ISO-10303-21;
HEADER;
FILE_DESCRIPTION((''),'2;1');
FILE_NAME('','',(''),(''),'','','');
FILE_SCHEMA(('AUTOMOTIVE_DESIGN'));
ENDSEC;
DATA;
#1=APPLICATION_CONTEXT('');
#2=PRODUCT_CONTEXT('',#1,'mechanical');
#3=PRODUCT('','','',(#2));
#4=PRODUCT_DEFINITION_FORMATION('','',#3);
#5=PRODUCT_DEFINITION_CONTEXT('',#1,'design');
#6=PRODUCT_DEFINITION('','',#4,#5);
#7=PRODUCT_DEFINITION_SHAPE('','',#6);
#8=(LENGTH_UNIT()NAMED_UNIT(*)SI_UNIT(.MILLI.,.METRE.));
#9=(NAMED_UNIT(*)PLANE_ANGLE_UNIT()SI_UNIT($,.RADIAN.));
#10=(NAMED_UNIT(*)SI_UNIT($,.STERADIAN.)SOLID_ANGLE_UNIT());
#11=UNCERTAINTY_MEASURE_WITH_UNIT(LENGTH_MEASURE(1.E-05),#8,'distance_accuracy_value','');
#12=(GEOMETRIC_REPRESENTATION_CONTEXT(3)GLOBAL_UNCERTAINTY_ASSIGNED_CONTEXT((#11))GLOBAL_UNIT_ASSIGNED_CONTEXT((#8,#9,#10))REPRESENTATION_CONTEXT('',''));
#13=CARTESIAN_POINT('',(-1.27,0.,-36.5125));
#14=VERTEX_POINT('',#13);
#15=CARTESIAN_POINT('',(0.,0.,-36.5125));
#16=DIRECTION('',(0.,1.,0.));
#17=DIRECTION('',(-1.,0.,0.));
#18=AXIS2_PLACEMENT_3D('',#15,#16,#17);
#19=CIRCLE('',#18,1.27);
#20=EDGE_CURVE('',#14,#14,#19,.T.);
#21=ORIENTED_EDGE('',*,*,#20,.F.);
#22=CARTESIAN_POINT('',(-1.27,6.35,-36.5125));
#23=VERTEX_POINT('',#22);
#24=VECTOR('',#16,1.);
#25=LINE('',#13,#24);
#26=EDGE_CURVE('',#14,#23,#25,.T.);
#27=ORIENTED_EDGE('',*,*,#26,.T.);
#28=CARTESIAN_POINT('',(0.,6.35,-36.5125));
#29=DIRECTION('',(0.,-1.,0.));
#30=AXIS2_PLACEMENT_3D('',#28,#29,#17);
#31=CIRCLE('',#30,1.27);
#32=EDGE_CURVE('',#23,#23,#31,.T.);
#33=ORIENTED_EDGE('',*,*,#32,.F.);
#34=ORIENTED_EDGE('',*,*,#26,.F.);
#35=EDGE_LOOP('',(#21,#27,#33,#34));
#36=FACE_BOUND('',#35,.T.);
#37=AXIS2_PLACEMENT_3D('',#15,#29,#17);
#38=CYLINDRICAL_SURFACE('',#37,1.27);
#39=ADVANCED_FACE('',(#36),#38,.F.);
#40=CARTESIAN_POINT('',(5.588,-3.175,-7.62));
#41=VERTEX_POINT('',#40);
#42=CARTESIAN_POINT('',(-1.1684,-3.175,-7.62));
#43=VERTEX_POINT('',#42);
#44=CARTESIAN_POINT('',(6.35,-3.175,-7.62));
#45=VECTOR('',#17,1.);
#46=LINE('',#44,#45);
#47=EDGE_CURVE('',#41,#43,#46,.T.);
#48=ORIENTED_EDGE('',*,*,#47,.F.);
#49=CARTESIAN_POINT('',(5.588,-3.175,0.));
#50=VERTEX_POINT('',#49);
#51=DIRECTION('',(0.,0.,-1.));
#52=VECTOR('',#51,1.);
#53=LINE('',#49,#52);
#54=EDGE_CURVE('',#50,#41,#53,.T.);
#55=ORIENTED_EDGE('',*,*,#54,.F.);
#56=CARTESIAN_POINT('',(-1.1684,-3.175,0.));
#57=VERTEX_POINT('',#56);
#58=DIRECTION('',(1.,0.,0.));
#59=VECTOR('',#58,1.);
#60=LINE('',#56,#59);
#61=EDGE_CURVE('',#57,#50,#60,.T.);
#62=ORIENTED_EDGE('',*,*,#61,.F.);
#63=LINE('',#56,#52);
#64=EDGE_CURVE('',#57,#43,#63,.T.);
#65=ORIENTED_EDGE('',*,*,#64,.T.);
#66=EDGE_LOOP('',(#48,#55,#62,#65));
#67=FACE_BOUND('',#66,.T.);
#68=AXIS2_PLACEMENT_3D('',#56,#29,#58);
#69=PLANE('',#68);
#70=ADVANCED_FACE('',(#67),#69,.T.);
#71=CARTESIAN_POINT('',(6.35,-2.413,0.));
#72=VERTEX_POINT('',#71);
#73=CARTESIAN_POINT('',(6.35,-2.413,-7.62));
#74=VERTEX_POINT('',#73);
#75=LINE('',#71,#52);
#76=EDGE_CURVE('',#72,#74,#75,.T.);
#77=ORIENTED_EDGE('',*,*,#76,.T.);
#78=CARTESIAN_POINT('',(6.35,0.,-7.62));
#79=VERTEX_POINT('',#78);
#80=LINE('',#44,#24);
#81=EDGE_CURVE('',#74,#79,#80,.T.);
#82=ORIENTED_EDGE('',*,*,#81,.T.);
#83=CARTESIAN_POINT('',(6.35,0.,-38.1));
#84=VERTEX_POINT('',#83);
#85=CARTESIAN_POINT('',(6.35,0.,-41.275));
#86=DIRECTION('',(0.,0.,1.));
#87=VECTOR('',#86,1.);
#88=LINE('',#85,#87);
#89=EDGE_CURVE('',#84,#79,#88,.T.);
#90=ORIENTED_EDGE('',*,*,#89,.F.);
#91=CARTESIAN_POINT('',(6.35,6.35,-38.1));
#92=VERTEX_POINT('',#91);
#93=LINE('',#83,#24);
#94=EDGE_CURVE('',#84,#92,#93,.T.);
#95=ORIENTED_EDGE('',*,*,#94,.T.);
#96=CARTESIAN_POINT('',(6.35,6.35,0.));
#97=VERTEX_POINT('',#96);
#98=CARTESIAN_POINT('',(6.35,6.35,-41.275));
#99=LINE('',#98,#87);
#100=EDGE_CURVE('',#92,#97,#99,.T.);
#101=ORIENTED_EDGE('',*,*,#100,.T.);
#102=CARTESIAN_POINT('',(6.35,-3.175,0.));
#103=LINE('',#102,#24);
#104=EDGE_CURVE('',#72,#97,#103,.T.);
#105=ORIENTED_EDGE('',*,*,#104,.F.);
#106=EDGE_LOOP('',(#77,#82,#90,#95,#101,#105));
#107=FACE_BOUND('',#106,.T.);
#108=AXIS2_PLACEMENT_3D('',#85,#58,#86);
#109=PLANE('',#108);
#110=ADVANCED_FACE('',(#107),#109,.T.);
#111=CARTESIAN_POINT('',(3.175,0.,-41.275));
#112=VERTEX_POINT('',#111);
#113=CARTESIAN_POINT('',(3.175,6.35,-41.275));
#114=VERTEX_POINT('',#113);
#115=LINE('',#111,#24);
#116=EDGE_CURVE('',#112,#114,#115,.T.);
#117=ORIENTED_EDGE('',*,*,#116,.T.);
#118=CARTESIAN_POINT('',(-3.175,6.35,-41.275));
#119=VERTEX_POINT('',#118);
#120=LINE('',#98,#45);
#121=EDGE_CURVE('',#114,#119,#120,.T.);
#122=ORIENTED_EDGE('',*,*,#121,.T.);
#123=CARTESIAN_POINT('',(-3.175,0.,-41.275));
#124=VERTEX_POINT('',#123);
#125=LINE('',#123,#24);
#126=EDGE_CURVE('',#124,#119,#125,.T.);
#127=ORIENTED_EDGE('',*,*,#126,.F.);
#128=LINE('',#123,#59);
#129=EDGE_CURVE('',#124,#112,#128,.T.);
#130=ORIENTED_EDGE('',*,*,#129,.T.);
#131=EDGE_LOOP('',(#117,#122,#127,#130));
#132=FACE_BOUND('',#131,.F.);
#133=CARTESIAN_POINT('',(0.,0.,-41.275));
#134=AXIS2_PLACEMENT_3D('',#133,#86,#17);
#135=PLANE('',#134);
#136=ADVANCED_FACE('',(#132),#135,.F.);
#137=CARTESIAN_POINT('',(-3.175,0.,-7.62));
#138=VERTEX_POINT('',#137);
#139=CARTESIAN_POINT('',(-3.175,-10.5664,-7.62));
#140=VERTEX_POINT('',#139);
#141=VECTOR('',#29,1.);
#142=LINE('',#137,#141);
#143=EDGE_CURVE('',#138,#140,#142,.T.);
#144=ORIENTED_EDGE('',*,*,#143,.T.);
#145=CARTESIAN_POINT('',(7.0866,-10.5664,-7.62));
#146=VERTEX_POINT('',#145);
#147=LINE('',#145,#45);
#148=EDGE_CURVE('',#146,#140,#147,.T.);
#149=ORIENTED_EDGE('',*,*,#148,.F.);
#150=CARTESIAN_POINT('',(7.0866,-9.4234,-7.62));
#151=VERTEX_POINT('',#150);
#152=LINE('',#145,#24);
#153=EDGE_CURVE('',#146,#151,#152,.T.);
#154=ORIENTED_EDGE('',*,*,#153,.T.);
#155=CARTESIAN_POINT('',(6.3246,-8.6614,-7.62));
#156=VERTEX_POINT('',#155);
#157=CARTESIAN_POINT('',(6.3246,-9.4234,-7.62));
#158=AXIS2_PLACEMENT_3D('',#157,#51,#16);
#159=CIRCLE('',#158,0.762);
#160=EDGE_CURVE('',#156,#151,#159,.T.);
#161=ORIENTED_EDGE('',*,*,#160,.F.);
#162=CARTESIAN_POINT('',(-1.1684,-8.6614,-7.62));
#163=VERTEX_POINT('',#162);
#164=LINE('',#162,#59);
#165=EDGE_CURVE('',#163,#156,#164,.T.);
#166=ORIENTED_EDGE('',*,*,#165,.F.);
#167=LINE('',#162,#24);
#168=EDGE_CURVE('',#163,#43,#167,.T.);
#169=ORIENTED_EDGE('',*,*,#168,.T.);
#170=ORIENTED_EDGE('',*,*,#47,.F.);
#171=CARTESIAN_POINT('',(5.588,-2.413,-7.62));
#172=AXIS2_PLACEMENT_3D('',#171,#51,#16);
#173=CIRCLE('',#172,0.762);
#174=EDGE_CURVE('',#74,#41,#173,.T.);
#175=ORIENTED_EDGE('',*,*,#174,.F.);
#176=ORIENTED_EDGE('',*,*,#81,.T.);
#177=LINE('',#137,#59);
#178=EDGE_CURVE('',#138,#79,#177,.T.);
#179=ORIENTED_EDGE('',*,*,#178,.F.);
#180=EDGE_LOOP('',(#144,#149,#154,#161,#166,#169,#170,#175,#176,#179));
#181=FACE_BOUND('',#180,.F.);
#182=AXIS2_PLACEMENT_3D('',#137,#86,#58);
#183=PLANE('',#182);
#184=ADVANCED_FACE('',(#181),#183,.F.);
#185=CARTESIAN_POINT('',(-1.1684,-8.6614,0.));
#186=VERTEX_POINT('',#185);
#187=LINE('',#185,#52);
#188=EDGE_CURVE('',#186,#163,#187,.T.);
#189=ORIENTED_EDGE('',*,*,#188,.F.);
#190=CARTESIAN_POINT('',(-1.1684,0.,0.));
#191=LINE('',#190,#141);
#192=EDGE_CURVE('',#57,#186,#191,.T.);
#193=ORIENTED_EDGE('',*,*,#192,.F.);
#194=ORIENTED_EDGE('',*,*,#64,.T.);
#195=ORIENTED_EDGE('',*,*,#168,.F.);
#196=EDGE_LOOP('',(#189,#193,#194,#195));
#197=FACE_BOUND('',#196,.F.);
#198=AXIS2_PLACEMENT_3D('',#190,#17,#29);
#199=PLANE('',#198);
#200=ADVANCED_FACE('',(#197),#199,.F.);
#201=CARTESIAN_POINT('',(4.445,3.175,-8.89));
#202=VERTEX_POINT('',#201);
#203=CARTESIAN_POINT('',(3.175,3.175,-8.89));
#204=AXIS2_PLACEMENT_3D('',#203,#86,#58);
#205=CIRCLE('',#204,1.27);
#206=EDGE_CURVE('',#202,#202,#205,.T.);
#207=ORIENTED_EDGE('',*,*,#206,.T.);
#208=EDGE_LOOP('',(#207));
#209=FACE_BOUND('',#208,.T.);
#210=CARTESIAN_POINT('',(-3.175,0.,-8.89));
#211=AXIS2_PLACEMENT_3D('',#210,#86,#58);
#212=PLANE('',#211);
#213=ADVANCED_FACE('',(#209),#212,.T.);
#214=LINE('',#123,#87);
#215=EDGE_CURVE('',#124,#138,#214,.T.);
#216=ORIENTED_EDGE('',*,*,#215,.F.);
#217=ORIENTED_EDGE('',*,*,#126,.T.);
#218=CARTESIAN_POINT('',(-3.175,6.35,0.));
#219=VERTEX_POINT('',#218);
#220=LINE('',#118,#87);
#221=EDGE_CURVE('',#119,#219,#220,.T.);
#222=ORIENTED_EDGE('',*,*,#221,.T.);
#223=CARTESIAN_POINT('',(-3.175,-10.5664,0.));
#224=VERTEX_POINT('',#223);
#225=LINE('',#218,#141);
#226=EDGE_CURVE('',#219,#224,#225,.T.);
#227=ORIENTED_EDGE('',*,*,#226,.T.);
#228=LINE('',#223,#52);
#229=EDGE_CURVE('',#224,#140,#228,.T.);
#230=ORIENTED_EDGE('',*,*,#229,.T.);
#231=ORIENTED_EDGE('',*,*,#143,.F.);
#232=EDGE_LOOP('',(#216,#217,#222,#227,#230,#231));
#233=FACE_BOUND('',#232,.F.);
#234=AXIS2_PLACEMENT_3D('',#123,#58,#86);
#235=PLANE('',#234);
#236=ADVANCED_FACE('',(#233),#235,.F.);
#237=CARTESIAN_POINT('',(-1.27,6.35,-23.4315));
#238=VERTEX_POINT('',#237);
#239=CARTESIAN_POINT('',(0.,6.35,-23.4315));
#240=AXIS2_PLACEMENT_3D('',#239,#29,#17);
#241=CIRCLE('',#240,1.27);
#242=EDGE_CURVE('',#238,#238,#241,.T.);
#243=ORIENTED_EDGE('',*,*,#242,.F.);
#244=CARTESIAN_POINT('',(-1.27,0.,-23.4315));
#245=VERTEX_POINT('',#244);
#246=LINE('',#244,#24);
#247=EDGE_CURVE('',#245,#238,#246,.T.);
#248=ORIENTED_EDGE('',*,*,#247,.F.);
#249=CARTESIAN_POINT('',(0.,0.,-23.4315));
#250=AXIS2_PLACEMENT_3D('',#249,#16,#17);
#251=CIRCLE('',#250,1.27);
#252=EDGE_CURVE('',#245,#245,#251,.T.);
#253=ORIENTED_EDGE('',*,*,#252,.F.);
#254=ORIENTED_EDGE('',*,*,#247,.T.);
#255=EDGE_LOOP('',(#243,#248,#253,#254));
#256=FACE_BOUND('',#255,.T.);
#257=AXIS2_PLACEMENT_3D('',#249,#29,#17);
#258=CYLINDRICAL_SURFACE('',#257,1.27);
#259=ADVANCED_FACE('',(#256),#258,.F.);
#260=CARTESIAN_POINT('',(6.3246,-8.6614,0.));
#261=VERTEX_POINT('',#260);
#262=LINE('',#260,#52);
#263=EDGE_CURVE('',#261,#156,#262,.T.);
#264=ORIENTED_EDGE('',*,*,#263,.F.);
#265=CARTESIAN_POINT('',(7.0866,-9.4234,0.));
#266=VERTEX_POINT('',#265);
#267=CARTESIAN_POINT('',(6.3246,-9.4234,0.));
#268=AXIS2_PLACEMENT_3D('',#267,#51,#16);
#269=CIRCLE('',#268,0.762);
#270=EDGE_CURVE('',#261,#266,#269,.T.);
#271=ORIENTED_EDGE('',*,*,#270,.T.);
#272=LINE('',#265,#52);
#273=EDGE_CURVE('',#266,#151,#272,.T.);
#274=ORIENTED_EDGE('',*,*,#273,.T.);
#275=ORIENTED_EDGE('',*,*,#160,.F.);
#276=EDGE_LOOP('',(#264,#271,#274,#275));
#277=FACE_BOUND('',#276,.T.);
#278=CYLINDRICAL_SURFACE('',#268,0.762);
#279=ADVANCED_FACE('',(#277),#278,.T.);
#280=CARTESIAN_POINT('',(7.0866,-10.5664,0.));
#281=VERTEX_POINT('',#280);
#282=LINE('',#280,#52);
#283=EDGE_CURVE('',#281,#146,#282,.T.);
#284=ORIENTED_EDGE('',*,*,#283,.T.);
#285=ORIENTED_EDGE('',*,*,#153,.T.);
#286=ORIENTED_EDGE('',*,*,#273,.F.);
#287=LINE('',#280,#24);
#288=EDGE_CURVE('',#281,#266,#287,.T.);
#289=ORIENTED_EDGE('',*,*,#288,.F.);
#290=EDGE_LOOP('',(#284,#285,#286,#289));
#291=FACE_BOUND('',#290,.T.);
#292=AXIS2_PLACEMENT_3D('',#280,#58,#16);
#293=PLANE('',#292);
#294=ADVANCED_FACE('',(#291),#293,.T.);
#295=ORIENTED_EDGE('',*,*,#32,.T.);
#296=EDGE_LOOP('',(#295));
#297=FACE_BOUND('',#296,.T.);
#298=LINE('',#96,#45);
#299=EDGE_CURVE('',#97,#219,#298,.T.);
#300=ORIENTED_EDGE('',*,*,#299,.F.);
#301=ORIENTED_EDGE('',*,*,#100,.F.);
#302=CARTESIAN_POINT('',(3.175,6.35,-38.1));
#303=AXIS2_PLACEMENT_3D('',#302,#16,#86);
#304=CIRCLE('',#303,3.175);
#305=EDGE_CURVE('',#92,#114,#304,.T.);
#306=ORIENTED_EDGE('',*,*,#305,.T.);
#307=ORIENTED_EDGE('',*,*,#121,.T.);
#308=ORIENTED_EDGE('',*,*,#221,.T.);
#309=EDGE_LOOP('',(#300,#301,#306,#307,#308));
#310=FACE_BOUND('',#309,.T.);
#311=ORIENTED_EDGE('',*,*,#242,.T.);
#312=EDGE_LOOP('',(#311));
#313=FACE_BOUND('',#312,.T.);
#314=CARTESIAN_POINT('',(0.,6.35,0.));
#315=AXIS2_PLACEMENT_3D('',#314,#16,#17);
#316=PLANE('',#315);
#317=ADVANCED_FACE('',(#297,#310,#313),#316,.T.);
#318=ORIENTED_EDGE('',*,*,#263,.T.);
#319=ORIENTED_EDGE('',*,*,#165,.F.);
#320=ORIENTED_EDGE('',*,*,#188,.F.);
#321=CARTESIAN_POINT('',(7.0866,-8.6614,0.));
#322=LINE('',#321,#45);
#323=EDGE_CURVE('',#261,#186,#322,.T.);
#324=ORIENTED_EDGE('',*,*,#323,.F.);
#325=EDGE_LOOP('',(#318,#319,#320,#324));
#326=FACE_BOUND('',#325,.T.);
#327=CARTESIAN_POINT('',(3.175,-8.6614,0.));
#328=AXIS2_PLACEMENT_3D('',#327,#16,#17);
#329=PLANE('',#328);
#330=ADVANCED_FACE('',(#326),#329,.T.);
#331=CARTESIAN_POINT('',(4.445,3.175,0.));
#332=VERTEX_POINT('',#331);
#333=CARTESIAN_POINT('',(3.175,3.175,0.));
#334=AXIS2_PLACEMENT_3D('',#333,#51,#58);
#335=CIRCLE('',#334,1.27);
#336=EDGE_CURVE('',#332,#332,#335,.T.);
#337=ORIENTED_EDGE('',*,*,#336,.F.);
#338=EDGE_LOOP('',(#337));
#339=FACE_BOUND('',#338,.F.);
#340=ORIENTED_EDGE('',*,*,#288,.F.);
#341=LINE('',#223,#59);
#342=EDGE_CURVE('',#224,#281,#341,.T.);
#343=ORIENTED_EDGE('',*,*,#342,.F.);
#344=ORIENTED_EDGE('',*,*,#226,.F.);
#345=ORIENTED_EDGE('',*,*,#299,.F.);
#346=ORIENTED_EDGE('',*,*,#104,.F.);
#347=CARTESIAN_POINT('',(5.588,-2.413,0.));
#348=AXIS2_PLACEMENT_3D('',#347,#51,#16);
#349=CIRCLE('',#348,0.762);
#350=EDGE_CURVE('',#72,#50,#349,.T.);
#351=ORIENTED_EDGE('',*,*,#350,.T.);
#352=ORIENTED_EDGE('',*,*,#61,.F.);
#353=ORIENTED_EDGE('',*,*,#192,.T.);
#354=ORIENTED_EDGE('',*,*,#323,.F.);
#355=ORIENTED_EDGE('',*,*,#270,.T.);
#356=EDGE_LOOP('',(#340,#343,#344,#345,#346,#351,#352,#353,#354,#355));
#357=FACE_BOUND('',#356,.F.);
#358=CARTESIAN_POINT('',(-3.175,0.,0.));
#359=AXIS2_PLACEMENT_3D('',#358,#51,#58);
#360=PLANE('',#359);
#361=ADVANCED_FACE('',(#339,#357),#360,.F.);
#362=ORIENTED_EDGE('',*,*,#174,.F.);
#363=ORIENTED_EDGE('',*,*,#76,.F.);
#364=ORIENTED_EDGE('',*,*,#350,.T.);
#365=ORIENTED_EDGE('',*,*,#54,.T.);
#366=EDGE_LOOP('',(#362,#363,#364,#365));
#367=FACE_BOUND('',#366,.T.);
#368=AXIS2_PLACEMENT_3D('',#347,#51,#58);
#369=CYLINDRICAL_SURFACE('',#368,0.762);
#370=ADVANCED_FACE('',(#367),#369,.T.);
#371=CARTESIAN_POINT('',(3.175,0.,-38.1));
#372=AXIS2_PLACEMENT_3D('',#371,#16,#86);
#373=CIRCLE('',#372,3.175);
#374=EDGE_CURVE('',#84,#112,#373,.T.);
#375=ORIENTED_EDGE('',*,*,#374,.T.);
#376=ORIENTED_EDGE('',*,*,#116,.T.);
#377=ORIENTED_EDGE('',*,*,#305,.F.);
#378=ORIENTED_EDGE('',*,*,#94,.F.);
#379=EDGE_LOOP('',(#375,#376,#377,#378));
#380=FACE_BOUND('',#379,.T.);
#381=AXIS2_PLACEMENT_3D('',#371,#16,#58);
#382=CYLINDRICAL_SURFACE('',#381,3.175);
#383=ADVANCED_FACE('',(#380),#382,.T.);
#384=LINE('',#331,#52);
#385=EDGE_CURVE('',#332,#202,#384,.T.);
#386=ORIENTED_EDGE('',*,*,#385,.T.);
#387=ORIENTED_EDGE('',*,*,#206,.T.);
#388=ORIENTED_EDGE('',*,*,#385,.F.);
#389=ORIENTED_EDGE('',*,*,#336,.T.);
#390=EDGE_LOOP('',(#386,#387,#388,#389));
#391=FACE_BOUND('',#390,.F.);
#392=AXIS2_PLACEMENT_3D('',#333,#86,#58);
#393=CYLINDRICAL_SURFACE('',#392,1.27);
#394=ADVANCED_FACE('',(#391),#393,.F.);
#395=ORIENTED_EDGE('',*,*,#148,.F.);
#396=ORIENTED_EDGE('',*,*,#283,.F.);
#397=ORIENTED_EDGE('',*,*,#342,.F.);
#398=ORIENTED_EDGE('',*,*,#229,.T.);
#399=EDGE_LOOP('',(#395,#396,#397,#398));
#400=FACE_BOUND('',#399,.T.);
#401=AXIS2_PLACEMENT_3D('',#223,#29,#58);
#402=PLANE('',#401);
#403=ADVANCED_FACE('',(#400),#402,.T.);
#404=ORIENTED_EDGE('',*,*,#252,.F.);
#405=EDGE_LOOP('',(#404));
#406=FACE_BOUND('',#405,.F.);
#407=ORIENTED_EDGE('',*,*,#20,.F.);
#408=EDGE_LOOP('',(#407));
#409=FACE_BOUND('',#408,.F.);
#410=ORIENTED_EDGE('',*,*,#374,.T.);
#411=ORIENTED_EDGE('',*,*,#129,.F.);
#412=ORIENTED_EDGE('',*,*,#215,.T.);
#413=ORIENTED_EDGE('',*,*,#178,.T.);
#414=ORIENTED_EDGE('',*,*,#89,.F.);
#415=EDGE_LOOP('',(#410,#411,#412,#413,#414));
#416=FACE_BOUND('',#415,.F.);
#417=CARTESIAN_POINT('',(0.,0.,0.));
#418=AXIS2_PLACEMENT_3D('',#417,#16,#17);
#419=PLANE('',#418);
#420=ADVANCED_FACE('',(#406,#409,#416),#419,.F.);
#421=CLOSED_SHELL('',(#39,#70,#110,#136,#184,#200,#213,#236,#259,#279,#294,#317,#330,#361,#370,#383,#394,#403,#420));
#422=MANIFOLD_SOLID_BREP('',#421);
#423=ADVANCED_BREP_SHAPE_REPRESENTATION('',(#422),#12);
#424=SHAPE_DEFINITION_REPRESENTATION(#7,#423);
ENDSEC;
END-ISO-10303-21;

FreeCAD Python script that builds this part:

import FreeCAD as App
import Part
import Sketcher
Q = App.Units.Quantity


def edges_at(feature, points):
    """Names of the edges that pass closest to the given points."""
    edges = feature.Shape.Edges
    near = lambda p: min(range(len(edges)), key=lambda i: edges[i].distToShape(Part.Vertex(*p))[0])
    return sorted({f"Edge{near(p) + 1}" for p in points})


def add_polygon(sketch, points):
    """Adds a closed chain of lines whose ends are joined by coincident constraints."""
    first, n = sketch.GeometryCount, len(points)
    for a, b in zip(points, points[1:] + points[:1]):
        sketch.addGeometry(Part.LineSegment(App.Vector(*a, 0), App.Vector(*b, 0)), False)
    for i in range(n):
        sketch.addConstraint(Sketcher.Constraint("Coincident", first + i, 2, first + (i + 1) % n, 1))

doc = App.newDocument("Part")
params = doc.addObject("Spreadsheet::Sheet", "Params")
for row, (alias, value) in enumerate([
    ("sketch1_height", "1.625 in"),
    ("pad1_length", "0.25 in"),
    ("sketch2_diameter", "0.1 in"),
    ("pocket1_length", "0.25 in"),
    ("sketch3_diameter", "0.1 in"),
    ("pocket2_length", "0.35 in"),
    ("sketch4_width", "0.325 in"),
    ("sketch4_height", "0.075 in"),
    ("sketch4_width2", "0.079 in"),
    ("sketch4_height2", "0.416 in"),
    ("pad2_length", "0.3 in"),
    ("sketch5_height", "0.125 in"),
    ("sketch5_width", "0.296 in"),
    ("pad3_length", "0.3 in"),
    ("fillet_radius", "0.125 in"),
    ("fillet2_radius", "0.03 in"),
], start=1):
    params.set(f"A{row}", alias)
    params.set(f"B{row}", "=" + value)
    params.setAlias(f"B{row}", alias)

body = doc.addObject("PartDesign::Body", "Body")

# Sketch on XZ plane
sketch1 = body.newObject("Sketcher::SketchObject", "Sketch")
sketch1.AttachmentSupport = (doc.getObject("XZ_Plane"), [""])
sketch1.MapMode = "FlatFace"
add_polygon(sketch1, [(-3, 0), (6, 0), (6, -41), (-3, -41)])  # lines 0-3
sketch1.addConstraint([
    Sketcher.Constraint("Horizontal", 0),
    Sketcher.Constraint("Vertical", 1),
    Sketcher.Constraint("Horizontal", 2),
    Sketcher.Constraint("Vertical", 3),
    Sketcher.Constraint("PointOnObject", 0, 2, -1),
    Sketcher.Constraint("DistanceY", 1, 2, 1, 1, Q("1.625 in")),
    Sketcher.Constraint("DistanceX", -1, 1, 0, 2, Q("0.25 in")),
    Sketcher.Constraint("DistanceX", 2, 2, -1, 1, Q("0.125 in")),
])
sketch1.setExpression("Constraints[9]", "Params.sketch1_height")
pad1 = body.newObject("PartDesign::Pad", "Pad")
pad1.Profile = sketch1
pad1.setExpression("Length", "Params.pad1_length")
pad1.Reversed = True

# Sketch on XZ plane
sketch2 = body.newObject("Sketcher::SketchObject", "Sketch001")
sketch2.AttachmentSupport = (doc.getObject("XZ_Plane"), [""])
sketch2.MapMode = "FlatFace"
sketch2.addGeometry([
    Part.Circle(App.Vector(0, -23.4, 0), App.Vector(0, 0, 1), 1.3),
    Part.Circle(App.Vector(0, -36.5, 0), App.Vector(0, 0, 1), 1.3),
], False)
sketch2.addConstraint([
    Sketcher.Constraint("Equal", 0, 1),
    Sketcher.Constraint("PointOnObject", 0, 3, -2),
    Sketcher.Constraint("PointOnObject", 1, 3, -2),
    Sketcher.Constraint("Diameter", 0, Q("0.1 in")),
    Sketcher.Constraint("DistanceY", 1, 3, 0, 3, Q("0.515 in")),
    Sketcher.Constraint("DistanceY", 1, 3, -1, 1, Q("1.4375 in")),
])
sketch2.setExpression("Constraints[3]", "Params.sketch2_diameter")
pocket1 = body.newObject("PartDesign::Pocket", "Pocket")
pocket1.Profile = sketch2
pocket1.setExpression("Length", "Params.pocket1_length")

# Sketch on XY plane
sketch3 = body.newObject("Sketcher::SketchObject", "Sketch002")
sketch3.AttachmentSupport = (doc.getObject("XY_Plane"), [""])
sketch3.MapMode = "FlatFace"
sketch3.addGeometry(Part.Circle(App.Vector(3.2, 3.2, 0), App.Vector(0, 0, 1), 1.3), False)
sketch3.addConstraint([
    Sketcher.Constraint("Diameter", 0, Q("0.1 in")),
    Sketcher.Constraint("DistanceX", -1, 1, 0, 3, Q("0.125 in")),
    Sketcher.Constraint("DistanceY", -1, 1, 0, 3, Q("0.125 in")),
])
sketch3.setExpression("Constraints[0]", "Params.sketch3_diameter")
pocket2 = body.newObject("PartDesign::Pocket", "Pocket001")
pocket2.Profile = sketch3
pocket2.setExpression("Length", "Params.pocket2_length")

# Sketch on XY plane
sketch4 = body.newObject("Sketcher::SketchObject", "Sketch003")
sketch4.AttachmentSupport = (doc.getObject("XY_Plane"), [""])
sketch4.MapMode = "FlatFace"
add_polygon(sketch4, [(-1.2, 0), (-3.2, 0), (-3.2, -10.6), (7.1, -10.6), (7.1, -8.7), (-1.2, -8.7)])  # lines 0-5
sketch4.addConstraint([
    Sketcher.Constraint("Horizontal", 0),
    Sketcher.Constraint("Vertical", 1),
    Sketcher.Constraint("Horizontal", 2),
    Sketcher.Constraint("Vertical", 3),
    Sketcher.Constraint("Horizontal", 4),
    Sketcher.Constraint("Vertical", 5),
    Sketcher.Constraint("PointOnObject", 0, 2, -1),
    Sketcher.Constraint("DistanceX", 4, 2, 4, 1, Q("0.325 in")),
    Sketcher.Constraint("DistanceY", 3, 1, 3, 2, Q("0.075 in")),
    Sketcher.Constraint("DistanceX", 0, 2, -1, 1, Q("0.125 in")),
    Sketcher.Constraint("DistanceX", 0, 2, 0, 1, Q("0.079 in")),
    Sketcher.Constraint("DistanceY", 1, 2, 1, 1, Q("0.416 in")),
])
sketch4.setExpression("Constraints[13]", "Params.sketch4_width")
sketch4.setExpression("Constraints[14]", "Params.sketch4_height")
sketch4.setExpression("Constraints[16]", "Params.sketch4_width2")
sketch4.setExpression("Constraints[17]", "Params.sketch4_height2")
pad2 = body.newObject("PartDesign::Pad", "Pad001")
pad2.Profile = sketch4
pad2.setExpression("Length", "Params.pad2_length")
pad2.Reversed = True

# Sketch on XY plane
sketch5 = body.newObject("Sketcher::SketchObject", "Sketch004")
sketch5.AttachmentSupport = (doc.getObject("XY_Plane"), [""])
sketch5.MapMode = "FlatFace"
add_polygon(sketch5, [(-1.2, 0), (-1.2, -3.2), (6.3, -3.2), (6.3, 0)])  # lines 0-3
sketch5.addConstraint([
    Sketcher.Constraint("Vertical", 0),
    Sketcher.Constraint("Horizontal", 1),
    Sketcher.Constraint("Vertical", 2),
    Sketcher.Constraint("Horizontal", 3),
    Sketcher.Constraint("PointOnObject", 2, 2, -1),
    Sketcher.Constraint("DistanceY", 0, 2, 0, 1, Q("0.125 in")),
    Sketcher.Constraint("DistanceX", -1, 1, 1, 2, Q("0.25 in")),
    Sketcher.Constraint("DistanceX", 1, 1, 1, 2, Q("0.296 in")),
])
sketch5.setExpression("Constraints[9]", "Params.sketch5_height")
sketch5.setExpression("Constraints[11]", "Params.sketch5_width")
pad3 = body.newObject("PartDesign::Pad", "Pad002")
pad3.Profile = sketch5
pad3.setExpression("Length", "Params.pad3_length")
pad3.Reversed = True
doc.recompute()

fillet = body.newObject("PartDesign::Fillet", "Fillet")
fillet.Base = (pad3, edges_at(pad3, [(6.35, 3.175, -41.275)]))
fillet.setExpression("Radius", "Params.fillet_radius")
doc.recompute()

fillet2 = body.newObject("PartDesign::Fillet", "Fillet001")
fillet2.Base = (fillet, edges_at(fillet, [(6.35, -3.175, -3.81), (7.087, -8.661, -3.81)]))
fillet2.setExpression("Radius", "Params.fillet2_radius")

doc.recompute()
